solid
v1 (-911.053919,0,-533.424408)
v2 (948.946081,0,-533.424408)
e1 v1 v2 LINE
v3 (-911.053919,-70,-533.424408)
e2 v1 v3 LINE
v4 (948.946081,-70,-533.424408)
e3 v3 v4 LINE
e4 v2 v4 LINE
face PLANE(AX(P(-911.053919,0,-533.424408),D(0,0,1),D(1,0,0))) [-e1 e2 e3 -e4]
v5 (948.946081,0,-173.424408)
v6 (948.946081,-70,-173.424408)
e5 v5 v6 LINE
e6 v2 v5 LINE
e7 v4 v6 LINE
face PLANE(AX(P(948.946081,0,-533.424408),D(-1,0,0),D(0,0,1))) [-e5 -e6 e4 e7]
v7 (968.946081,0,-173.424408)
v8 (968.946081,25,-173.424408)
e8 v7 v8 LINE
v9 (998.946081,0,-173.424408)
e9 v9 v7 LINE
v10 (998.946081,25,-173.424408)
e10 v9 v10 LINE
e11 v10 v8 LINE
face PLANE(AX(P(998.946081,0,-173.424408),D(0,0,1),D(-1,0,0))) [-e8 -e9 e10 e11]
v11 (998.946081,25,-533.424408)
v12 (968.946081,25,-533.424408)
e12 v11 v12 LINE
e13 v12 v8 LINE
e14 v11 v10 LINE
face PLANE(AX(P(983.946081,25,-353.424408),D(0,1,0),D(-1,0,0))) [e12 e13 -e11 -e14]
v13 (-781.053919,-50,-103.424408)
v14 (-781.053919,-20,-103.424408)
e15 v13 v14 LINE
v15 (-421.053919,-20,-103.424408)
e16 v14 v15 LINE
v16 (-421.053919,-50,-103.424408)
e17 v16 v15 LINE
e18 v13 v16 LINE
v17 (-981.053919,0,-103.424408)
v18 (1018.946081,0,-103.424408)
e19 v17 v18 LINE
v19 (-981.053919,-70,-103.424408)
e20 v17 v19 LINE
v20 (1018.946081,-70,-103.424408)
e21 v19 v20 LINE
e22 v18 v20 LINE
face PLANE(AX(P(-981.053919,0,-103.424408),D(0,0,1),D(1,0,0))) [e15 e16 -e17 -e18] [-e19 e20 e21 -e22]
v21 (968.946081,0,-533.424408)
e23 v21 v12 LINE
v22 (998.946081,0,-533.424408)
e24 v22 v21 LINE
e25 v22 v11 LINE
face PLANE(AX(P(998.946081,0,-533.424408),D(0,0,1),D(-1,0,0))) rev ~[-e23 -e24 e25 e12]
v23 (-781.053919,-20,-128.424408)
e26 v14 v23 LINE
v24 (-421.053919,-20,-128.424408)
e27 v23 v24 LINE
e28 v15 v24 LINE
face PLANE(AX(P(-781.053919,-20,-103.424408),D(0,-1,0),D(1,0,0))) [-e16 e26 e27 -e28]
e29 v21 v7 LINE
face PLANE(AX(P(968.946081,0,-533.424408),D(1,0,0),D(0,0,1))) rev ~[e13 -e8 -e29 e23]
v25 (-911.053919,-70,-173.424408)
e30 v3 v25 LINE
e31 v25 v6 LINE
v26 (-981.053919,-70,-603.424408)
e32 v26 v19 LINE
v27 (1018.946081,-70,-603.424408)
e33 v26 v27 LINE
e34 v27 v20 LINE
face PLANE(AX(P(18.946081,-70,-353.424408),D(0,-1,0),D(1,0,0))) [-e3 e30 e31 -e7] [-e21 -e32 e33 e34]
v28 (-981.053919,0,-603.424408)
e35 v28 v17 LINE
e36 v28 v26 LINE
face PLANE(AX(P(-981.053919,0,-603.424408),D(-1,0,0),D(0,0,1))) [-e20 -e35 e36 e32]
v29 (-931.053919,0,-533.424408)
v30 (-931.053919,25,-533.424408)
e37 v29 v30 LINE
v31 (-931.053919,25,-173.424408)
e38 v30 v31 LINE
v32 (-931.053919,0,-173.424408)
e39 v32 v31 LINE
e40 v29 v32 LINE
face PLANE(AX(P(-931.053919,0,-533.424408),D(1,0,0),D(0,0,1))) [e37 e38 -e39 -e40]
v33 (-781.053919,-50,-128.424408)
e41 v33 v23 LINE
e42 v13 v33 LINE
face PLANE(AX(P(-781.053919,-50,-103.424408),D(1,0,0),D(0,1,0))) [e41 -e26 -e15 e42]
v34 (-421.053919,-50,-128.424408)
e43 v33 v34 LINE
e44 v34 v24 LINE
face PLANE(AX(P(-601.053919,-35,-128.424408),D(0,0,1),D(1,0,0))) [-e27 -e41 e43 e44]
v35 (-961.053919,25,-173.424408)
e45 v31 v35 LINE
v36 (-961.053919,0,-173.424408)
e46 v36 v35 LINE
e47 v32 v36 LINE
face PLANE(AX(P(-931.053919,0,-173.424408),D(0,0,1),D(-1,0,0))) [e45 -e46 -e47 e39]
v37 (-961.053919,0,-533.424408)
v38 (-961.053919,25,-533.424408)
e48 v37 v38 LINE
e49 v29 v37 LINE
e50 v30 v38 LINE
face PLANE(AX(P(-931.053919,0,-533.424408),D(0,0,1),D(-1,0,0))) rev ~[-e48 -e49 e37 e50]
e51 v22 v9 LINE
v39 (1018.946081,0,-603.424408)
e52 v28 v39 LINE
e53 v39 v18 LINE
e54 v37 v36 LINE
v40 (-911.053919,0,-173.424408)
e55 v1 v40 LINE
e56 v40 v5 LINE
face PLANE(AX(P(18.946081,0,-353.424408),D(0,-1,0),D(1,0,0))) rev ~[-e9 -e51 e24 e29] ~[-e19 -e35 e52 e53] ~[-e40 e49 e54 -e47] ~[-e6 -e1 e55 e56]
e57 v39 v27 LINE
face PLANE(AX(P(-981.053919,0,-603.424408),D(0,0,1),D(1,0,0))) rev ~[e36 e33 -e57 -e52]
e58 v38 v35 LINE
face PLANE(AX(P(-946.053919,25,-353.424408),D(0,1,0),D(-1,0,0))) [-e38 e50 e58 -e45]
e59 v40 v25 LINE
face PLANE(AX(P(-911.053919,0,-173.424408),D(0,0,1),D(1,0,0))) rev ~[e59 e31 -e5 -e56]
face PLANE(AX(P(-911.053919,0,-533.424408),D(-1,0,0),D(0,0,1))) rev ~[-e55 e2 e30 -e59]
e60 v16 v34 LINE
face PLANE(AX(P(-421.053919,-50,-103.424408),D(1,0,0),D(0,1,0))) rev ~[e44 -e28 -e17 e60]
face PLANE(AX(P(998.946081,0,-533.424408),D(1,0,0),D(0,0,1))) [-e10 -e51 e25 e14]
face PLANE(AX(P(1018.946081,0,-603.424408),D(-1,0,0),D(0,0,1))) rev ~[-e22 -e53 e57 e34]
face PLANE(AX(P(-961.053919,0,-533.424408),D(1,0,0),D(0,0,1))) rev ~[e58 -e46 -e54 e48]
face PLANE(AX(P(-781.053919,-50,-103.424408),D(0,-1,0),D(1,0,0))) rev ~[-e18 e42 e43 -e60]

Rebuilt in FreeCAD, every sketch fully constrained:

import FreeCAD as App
import Part
import Sketcher


def add_polygon(sketch, points):
    """Adds a closed chain of lines whose ends are joined by coincident constraints."""
    first, n = sketch.GeometryCount, len(points)
    for a, b in zip(points, points[1:] + points[:1]):
        sketch.addGeometry(Part.LineSegment(App.Vector(*a, 0), App.Vector(*b, 0)), False)
    for i in range(n):
        sketch.addConstraint(Sketcher.Constraint("Coincident", first + i, 2, first + (i + 1) % n, 1))

doc = App.newDocument("Part")
params = doc.addObject("Spreadsheet::Sheet", "Params")
for row, (alias, value) in enumerate([
    ("sketch1_width", "2000 mm"),
    ("sketch1_width2", "1860 mm"),
    ("sketch1_height", "500 mm"),
    ("sketch1_height2", "360 mm"),
    ("pad1_length", "70 mm"),
    ("sketch2_width", "30 mm"),
    ("sketch2_height", "360 mm"),
    ("pad2_length", "25 mm"),
    ("sketch3_width", "30 mm"),
    ("sketch3_height", "360 mm"),
    ("pad3_length", "25 mm"),
    ("sketch4_width", "360 mm"),
    ("sketch4_height", "30 mm"),
    ("pocket1_length", "25 mm"),
], start=1):
    params.set(f"A{row}", alias)
    params.set(f"B{row}", "=" + value)
    params.setAlias(f"B{row}", alias)

body = doc.addObject("PartDesign::Body", "Body")

sketch1 = body.newObject("Sketcher::SketchObject", "Sketch")
sketch1.AttachmentSupport = (doc.getObject("XZ_Plane"), [""])
sketch1.MapMode = "FlatFace"
add_polygon(sketch1, [(-981.053919, -103.424408), (-981.053919, -603.424408), (1018.946081, -603.424408), (1018.946081, -103.424408)])
add_polygon(sketch1, [(948.946081, -533.424408), (-911.053919, -533.424408), (-911.053919, -173.424408), (948.946081, -173.424408)])
sketch1.addConstraint([
    Sketcher.Constraint("Vertical", 0),
    Sketcher.Constraint("Horizontal", 1),
    Sketcher.Constraint("Vertical", 2),
    Sketcher.Constraint("Horizontal", 3),
    Sketcher.Constraint("Horizontal", 4),
    Sketcher.Constraint("Vertical", 5),
    Sketcher.Constraint("Horizontal", 6),
    Sketcher.Constraint("Vertical", 7),
    Sketcher.Constraint("DistanceX", 1, 1, 1, 2, 2000.0),
    Sketcher.Constraint("DistanceX", 4, 2, 4, 1, 1860.0),
    Sketcher.Constraint("DistanceY", 0, 2, 0, 1, 500.0),
    Sketcher.Constraint("DistanceY", 5, 1, 5, 2, 360.0),
    Sketcher.Constraint("DistanceX", 0, 2, 4, 2, 70.0),
    Sketcher.Constraint("DistanceY", 0, 2, 4, 2, 70.0),
    Sketcher.Constraint("DistanceX", 0, 2, -1, 1, 981.053919),
    Sketcher.Constraint("DistanceY", 0, 2, -1, 1, 603.424408),
])
sketch1.setExpression("Constraints[16]", "Params.sketch1_width")
sketch1.setExpression("Constraints[17]", "Params.sketch1_width2")
sketch1.setExpression("Constraints[18]", "Params.sketch1_height")
sketch1.setExpression("Constraints[19]", "Params.sketch1_height2")
pad1 = body.newObject("PartDesign::Pad", "Pad")
pad1.Profile = sketch1
pad1.setExpression("Length", "Params.pad1_length")
body2 = doc.addObject("PartDesign::Body", "Body001")

sketch2 = body2.newObject("Sketcher::SketchObject", "Sketch001")
sketch2.AttachmentSupport = (doc.getObject("XZ_Plane001"), [""])
sketch2.MapMode = "FlatFace"
add_polygon(sketch2, [(-931.053919, -173.424408), (-931.053919, -533.424408), (-961.053919, -533.424408), (-961.053919, -173.424408)])
sketch2.addConstraint([
    Sketcher.Constraint("Vertical", 0),
    Sketcher.Constraint("Horizontal", 1),
    Sketcher.Constraint("Vertical", 2),
    Sketcher.Constraint("Horizontal", 3),
    Sketcher.Constraint("DistanceX", 1, 2, 1, 1, 30.0),
    Sketcher.Constraint("DistanceY", 0, 2, 0, 1, 360.0),
    Sketcher.Constraint("DistanceX", 0, 2, -1, 1, 931.053919),
    Sketcher.Constraint("DistanceY", 0, 2, -1, 1, 533.424408),
])
sketch2.setExpression("Constraints[8]", "Params.sketch2_width")
sketch2.setExpression("Constraints[9]", "Params.sketch2_height")
pad2 = body2.newObject("PartDesign::Pad", "Pad001")
pad2.Profile = sketch2
pad2.setExpression("Length", "Params.pad2_length")
doc.recompute()

boolean = body.newObject("PartDesign::Boolean", "Boolean")
boolean.Type = "Fuse"
boolean.addObjects([body2])

sketch3 = body.newObject("Sketcher::SketchObject", "Sketch002")
sketch3.AttachmentSupport = (doc.getObject("XZ_Plane"), [""])
sketch3.MapMode = "FlatFace"
add_polygon(sketch3, [(998.946081, -173.424408), (998.946081, -533.424408), (968.946081, -533.424408), (968.946081, -173.424408)])
add_polygon(sketch3, [(-931.053919, -173.424408), (-931.053919, -533.424408), (-961.053919, -533.424408), (-961.053919, -173.424408)])
sketch3.addConstraint([
    Sketcher.Constraint("Vertical", 0),
    Sketcher.Constraint("Horizontal", 1),
    Sketcher.Constraint("Vertical", 2),
    Sketcher.Constraint("Horizontal", 3),
    Sketcher.Constraint("Vertical", 4),
    Sketcher.Constraint("Horizontal", 5),
    Sketcher.Constraint("Vertical", 6),
    Sketcher.Constraint("Horizontal", 7),
    Sketcher.Constraint("Horizontal", 1, 2, 4, 2),
    Sketcher.Constraint("Horizontal", 3, 2, 6, 2),
    Sketcher.Constraint("Equal", 3, 5),
    Sketcher.Constraint("DistanceX", 1, 2, 1, 1, 30.0),
    Sketcher.Constraint("DistanceY", 0, 2, 0, 1, 360.0),
    Sketcher.Constraint("DistanceX", 4, 2, 1, 2, 1900.0),
    Sketcher.Constraint("DistanceX", -1, 1, 0, 2, 998.946081),
    Sketcher.Constraint("DistanceY", 0, 2, -1, 1, 533.424408),
])
sketch3.setExpression("Constraints[19]", "Params.sketch3_width")
sketch3.setExpression("Constraints[20]", "Params.sketch3_height")
pad3 = body.newObject("PartDesign::Pad", "Pad002")
pad3.Profile = sketch3
pad3.setExpression("Length", "Params.pad3_length")
pad3.Reversed = True

sketch4 = body.newObject("Sketcher::SketchObject", "Sketch003")
sketch4.AttachmentSupport = (doc.getObject("XY_Plane"), [""])
sketch4.MapMode = "FlatFace"
sketch4.AttachmentOffset = App.Placement(App.Vector(0, 0, -103.424408), App.Rotation())
add_polygon(sketch4, [(-781.053919, -20), (-781.053919, -50), (-421.053919, -50), (-421.053919, -20)])
sketch4.addConstraint([
    Sketcher.Constraint("Vertical", 0),
    Sketcher.Constraint("Horizontal", 1),
    Sketcher.Constraint("Vertical", 2),
    Sketcher.Constraint("Horizontal", 3),
    Sketcher.Constraint("DistanceX", 1, 1, 1, 2, 360.0),
    Sketcher.Constraint("DistanceY", 0, 2, 0, 1, 30.0),
    Sketcher.Constraint("DistanceY", 0, 2, -1, 1, 50.0),
    Sketcher.Constraint("DistanceX", 0, 2, -1, 1, 781.053919),
])
sketch4.setExpression("Constraints[8]", "Params.sketch4_width")
sketch4.setExpression("Constraints[9]", "Params.sketch4_height")
pocket1 = body.newObject("PartDesign::Pocket", "Pocket")
pocket1.Profile = sketch4
pocket1.setExpression("Length", "Params.pocket1_length")

doc.recompute()
